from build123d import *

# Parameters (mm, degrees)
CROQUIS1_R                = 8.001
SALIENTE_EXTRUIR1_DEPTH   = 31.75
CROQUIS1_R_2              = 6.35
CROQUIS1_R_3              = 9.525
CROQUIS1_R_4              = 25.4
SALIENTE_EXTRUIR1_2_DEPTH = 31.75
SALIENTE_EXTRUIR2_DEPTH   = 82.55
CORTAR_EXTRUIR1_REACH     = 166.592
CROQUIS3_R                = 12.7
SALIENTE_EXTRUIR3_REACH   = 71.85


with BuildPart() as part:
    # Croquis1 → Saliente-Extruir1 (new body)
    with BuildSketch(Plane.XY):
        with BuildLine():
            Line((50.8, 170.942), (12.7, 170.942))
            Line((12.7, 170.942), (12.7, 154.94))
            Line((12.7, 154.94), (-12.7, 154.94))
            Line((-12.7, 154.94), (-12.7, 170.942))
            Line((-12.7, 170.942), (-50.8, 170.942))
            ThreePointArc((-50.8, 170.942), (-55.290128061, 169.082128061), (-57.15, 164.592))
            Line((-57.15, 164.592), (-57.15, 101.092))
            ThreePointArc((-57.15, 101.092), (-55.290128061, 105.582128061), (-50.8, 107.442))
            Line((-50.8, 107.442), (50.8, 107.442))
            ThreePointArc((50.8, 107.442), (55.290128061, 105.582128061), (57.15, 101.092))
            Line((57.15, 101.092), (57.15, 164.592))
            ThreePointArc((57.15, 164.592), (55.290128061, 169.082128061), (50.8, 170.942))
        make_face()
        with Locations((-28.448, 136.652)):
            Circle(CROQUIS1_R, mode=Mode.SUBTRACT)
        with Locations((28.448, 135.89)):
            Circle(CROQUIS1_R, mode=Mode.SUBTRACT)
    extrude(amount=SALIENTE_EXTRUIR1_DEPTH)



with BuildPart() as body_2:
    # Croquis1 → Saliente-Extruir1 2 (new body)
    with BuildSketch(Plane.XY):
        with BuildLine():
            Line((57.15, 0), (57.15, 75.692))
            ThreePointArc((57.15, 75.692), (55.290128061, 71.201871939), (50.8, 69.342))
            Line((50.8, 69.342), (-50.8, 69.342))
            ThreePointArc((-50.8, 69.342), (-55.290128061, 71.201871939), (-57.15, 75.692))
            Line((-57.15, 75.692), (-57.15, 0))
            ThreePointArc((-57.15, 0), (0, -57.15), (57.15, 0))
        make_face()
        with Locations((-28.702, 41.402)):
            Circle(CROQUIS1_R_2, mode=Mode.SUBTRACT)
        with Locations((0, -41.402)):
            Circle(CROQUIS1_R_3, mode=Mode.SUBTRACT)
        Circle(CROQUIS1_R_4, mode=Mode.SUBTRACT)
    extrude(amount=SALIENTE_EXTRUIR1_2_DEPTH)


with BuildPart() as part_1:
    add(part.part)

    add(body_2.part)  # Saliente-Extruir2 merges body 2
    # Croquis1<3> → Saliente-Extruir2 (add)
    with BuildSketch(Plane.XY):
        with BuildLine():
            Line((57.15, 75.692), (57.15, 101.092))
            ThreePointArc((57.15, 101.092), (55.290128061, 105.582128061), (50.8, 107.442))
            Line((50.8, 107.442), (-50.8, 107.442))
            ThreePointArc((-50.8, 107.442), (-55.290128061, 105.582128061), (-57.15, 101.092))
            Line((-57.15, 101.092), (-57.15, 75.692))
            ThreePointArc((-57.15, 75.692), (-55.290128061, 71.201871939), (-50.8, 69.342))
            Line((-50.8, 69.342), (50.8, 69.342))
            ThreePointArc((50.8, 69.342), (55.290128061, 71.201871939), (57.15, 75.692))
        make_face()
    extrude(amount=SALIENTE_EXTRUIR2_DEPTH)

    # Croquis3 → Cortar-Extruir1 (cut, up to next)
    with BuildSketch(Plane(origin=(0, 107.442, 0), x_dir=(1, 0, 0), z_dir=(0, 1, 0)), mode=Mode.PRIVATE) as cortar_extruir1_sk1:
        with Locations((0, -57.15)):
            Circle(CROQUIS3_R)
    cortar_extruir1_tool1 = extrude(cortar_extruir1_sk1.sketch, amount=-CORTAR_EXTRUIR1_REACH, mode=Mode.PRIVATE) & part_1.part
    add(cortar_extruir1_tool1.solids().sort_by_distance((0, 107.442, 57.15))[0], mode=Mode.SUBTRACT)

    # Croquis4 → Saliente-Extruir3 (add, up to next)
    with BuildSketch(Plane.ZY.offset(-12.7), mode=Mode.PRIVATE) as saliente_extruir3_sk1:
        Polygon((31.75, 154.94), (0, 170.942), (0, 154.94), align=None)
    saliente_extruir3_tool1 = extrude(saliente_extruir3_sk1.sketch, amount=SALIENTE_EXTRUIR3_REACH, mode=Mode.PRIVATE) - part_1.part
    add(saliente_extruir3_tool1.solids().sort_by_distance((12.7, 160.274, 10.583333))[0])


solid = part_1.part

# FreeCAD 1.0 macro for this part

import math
import FreeCAD as App
import Part
import Sketcher
from FreeCAD import Vector
Q = App.Units.Quantity

doc = App.newDocument("Part")
body = doc.addObject("PartDesign::Body", "Body")

sketch1 = body.newObject("Sketcher::SketchObject", "Sketch")
sketch1.AttachmentSupport = (doc.getObject("XY_Plane"), [""])
sketch1.MapMode = "FlatFace"
sketch1.addGeometry(Part.LineSegment(Vector(51, 171, 0), Vector(13, 171, 0)), False)
sketch1.addGeometry(Part.LineSegment(Vector(13, 171, 0), Vector(13, 155, 0)), False)
sketch1.addGeometry(Part.LineSegment(Vector(13, 155, 0), Vector(-13, 155, 0)), False)
sketch1.addGeometry(Part.LineSegment(Vector(-13, 155, 0), Vector(-13, 171, 0)), False)
sketch1.addGeometry(Part.LineSegment(Vector(-13, 171, 0), Vector(-51, 171, 0)), False)
sketch1.addGeometry(Part.ArcOfCircle(Part.Circle(Vector(-51, 165, 0), Vector(0, 0, 1), 6), math.radians(90), math.radians(180)), False)
sketch1.addGeometry(Part.LineSegment(Vector(-57, 165, 0), Vector(-57, 101, 0)), False)
sketch1.addGeometry(Part.ArcOfCircle(Part.Circle(Vector(-51, 101, 0), Vector(0, 0, 1), 6), math.radians(90), math.radians(180)), False)
sketch1.addGeometry(Part.LineSegment(Vector(-51, 107, 0), Vector(51, 107, 0)), False)
sketch1.addGeometry(Part.ArcOfCircle(Part.Circle(Vector(51, 101, 0), Vector(0, 0, 1), 6), math.radians(0), math.radians(90)), False)
sketch1.addGeometry(Part.LineSegment(Vector(57, 101, 0), Vector(57, 165, 0)), False)
sketch1.addGeometry(Part.ArcOfCircle(Part.Circle(Vector(51, 165, 0), Vector(0, 0, 1), 6), math.radians(0), math.radians(90)), False)
sketch1.addGeometry(Part.Circle(Vector(28, 136, 0), Vector(0, 0, 1), 8), False)
sketch1.addGeometry(Part.Circle(Vector(-28, 137, 0), Vector(0, 0, 1), 8), False)
sketch1.addConstraint(Sketcher.Constraint("Coincident", 0, 2, 1, 1))
sketch1.addConstraint(Sketcher.Constraint("Coincident", 1, 2, 2, 1))
sketch1.addConstraint(Sketcher.Constraint("Coincident", 2, 2, 3, 1))
sketch1.addConstraint(Sketcher.Constraint("Coincident", 3, 2, 4, 1))
sketch1.addConstraint(Sketcher.Constraint("Tangent", 4, 2, 5, 1))
sketch1.addConstraint(Sketcher.Constraint("Tangent", 5, 2, 6, 1))
sketch1.addConstraint(Sketcher.Constraint("Tangent", 6, 2, 7, 2))
sketch1.addConstraint(Sketcher.Constraint("Tangent", 7, 1, 8, 1))
sketch1.addConstraint(Sketcher.Constraint("Tangent", 8, 2, 9, 2))
sketch1.addConstraint(Sketcher.Constraint("Tangent", 9, 1, 10, 1))
sketch1.addConstraint(Sketcher.Constraint("Tangent", 10, 2, 11, 1))
sketch1.addConstraint(Sketcher.Constraint("Tangent", 11, 2, 0, 1))
sketch1.addConstraint(Sketcher.Constraint("Horizontal", 0))
sketch1.addConstraint(Sketcher.Constraint("Vertical", 1))
sketch1.addConstraint(Sketcher.Constraint("Horizontal", 2))
sketch1.addConstraint(Sketcher.Constraint("Vertical", 3))
sketch1.addConstraint(Sketcher.Constraint("Horizontal", 4))
sketch1.addConstraint(Sketcher.Constraint("Vertical", 6))
sketch1.addConstraint(Sketcher.Constraint("Horizontal", 8))
sketch1.addConstraint(Sketcher.Constraint("Vertical", 10))
sketch1.addConstraint(Sketcher.Constraint("Equal", 5, 7))
sketch1.addConstraint(Sketcher.Constraint("Equal", 7, 9))
sketch1.addConstraint(Sketcher.Constraint("Equal", 9, 11))
sketch1.addConstraint(Sketcher.Constraint("Equal", 12, 13))
sketch1.addConstraint(Sketcher.Constraint("Symmetric", 5, 3, 11, 3, -2))
sketch1.addConstraint(Sketcher.Constraint("Equal", 0, 4))
sketch1.addConstraint(Sketcher.Constraint("Diameter", 12, Q("0.63 in")))
sketch1.addConstraint(Sketcher.Constraint("DistanceX", 2, 2, 2, 1, Q("1 in")))
sketch1.addConstraint(Sketcher.Constraint("DistanceX", 8, 1, 8, 2, Q("4 in")))
sketch1.addConstraint(Sketcher.Constraint("Radius", 5, Q("0.25 in")))
sketch1.addConstraint(Sketcher.Constraint("DistanceY", 6, 2, 6, 1, Q("2.5 in")))
sketch1.addConstraint(Sketcher.Constraint("DistanceY", 1, 2, 1, 1, Q("0.63 in")))
sketch1.addConstraint(Sketcher.Constraint("DistanceY", -1, 1, 1, 2, Q("6.1 in")))
sketch1.addConstraint(Sketcher.Constraint("DistanceY", 13, 3, 5, 3, Q("1.1 in")))
sketch1.addConstraint(Sketcher.Constraint("DistanceX", -1, 1, 12, 3, Q("1.12 in")))
sketch1.addConstraint(Sketcher.Constraint("DistanceY", -1, 1, 12, 3, Q("5.35 in")))
sketch1.addConstraint(Sketcher.Constraint("DistanceX", 13, 3, -1, 1, Q("1.12 in")))
pad1 = body.newObject("PartDesign::Pad", "Pad")
pad1.Profile = sketch1
pad1.Length = Q("1.25 in")
body2 = doc.addObject("PartDesign::Body", "Body001")

sketch2 = body2.newObject("Sketcher::SketchObject", "Sketch001")
sketch2.AttachmentSupport = (doc.getObject("XY_Plane001"), [""])
sketch2.MapMode = "FlatFace"
sketch2.addGeometry(Part.LineSegment(Vector(57, 0, 0), Vector(57, 76, 0)), False)
sketch2.addGeometry(Part.ArcOfCircle(Part.Circle(Vector(51, 76, 0), Vector(0, 0, 1), 6), math.radians(-90), math.radians(0)), False)
sketch2.addGeometry(Part.LineSegment(Vector(51, 69, 0), Vector(-51, 69, 0)), False)
sketch2.addGeometry(Part.ArcOfCircle(Part.Circle(Vector(-51, 76, 0), Vector(0, 0, 1), 6), math.radians(180), math.radians(270)), False)
sketch2.addGeometry(Part.LineSegment(Vector(-57, 76, 0), Vector(-57, 0, 0)), False)
sketch2.addGeometry(Part.ArcOfCircle(Part.Circle(Vector(0, 0, 0), Vector(0, 0, 1), 57), math.radians(180), math.radians(360)), False)
sketch2.addGeometry(Part.Circle(Vector(0, -41, 0), Vector(0, 0, 1), 10), False)
sketch2.addGeometry(Part.Circle(Vector(-29, 41, 0), Vector(0, 0, 1), 6), False)
sketch2.addGeometry(Part.Circle(Vector(0, 0, 0), Vector(0, 0, 1), 25), False)
sketch2.addConstraint(Sketcher.Constraint("Tangent", 0, 2, 1, 2))
sketch2.addConstraint(Sketcher.Constraint("Tangent", 1, 1, 2, 1))
sketch2.addConstraint(Sketcher.Constraint("Tangent", 2, 2, 3, 2))
sketch2.addConstraint(Sketcher.Constraint("Tangent", 3, 1, 4, 1))
sketch2.addConstraint(Sketcher.Constraint("Tangent", 4, 2, 5, 1))
sketch2.addConstraint(Sketcher.Constraint("Tangent", 5, 2, 0, 1))
sketch2.addConstraint(Sketcher.Constraint("Vertical", 0))
sketch2.addConstraint(Sketcher.Constraint("Horizontal", 2))
sketch2.addConstraint(Sketcher.Constraint("Vertical", 4))
sketch2.addConstraint(Sketcher.Constraint("Coincident", 5, 3, -1, 1))
sketch2.addConstraint(Sketcher.Constraint("Coincident", 8, 3, -1, 1))
sketch2.addConstraint(Sketcher.Constraint("Equal", 1, 3))
sketch2.addConstraint(Sketcher.Constraint("Equal", 3, 7))
sketch2.addConstraint(Sketcher.Constraint("PointOnObject", 6, 3, -2))
sketch2.addConstraint(Sketcher.Constraint("Diameter", 8, Q("2 in")))
sketch2.addConstraint(Sketcher.Constraint("Diameter", 7, Q("0.5 in")))
sketch2.addConstraint(Sketcher.Constraint("Diameter", 6, Q("0.75 in")))
sketch2.addConstraint(Sketcher.Constraint("DistanceX", 2, 2, 2, 1, Q("4 in")))
sketch2.addConstraint(Sketcher.Constraint("DistanceY", 0, 1, 0, 2, Q("2.98 in")))
sketch2.addConstraint(Sketcher.Constraint("DistanceY", 7, 3, 1, 1, Q("1.1 in")))
sketch2.addConstraint(Sketcher.Constraint("DistanceY", 6, 3, -1, 1, Q("1.63 in")))
sketch2.addConstraint(Sketcher.Constraint("DistanceX", 7, 3, -1, 1, Q("1.13 in")))
pad2 = body2.newObject("PartDesign::Pad", "Pad001")
pad2.Profile = sketch2
pad2.Length = Q("1.25 in")
body.AllowCompound = True
doc.recompute()

boolean = body.newObject("PartDesign::Boolean", "Boolean")
boolean.Type = "Fuse"
boolean.addObjects([body2])

sketch3 = body.newObject("Sketcher::SketchObject", "Sketch002")
sketch3.AttachmentSupport = (doc.getObject("XY_Plane"), [""])
sketch3.MapMode = "FlatFace"
sketch3.addGeometry(Part.LineSegment(Vector(57, 76, 0), Vector(57, 101, 0)), False)
sketch3.addGeometry(Part.ArcOfCircle(Part.Circle(Vector(51, 101, 0), Vector(0, 0, 1), 6), math.radians(0), math.radians(90)), False)
sketch3.addGeometry(Part.LineSegment(Vector(51, 107, 0), Vector(-51, 107, 0)), False)
sketch3.addGeometry(Part.ArcOfCircle(Part.Circle(Vector(-51, 101, 0), Vector(0, 0, 1), 6), math.radians(90), math.radians(180)), False)
sketch3.addGeometry(Part.LineSegment(Vector(-57, 101, 0), Vector(-57, 76, 0)), False)
sketch3.addGeometry(Part.ArcOfCircle(Part.Circle(Vector(-51, 76, 0), Vector(0, 0, 1), 6), math.radians(180), math.radians(270)), False)
sketch3.addGeometry(Part.LineSegment(Vector(-51, 69, 0), Vector(51, 69, 0)), False)
sketch3.addGeometry(Part.ArcOfCircle(Part.Circle(Vector(51, 76, 0), Vector(0, 0, 1), 6), math.radians(-90), math.radians(0)), False)
sketch3.addConstraint(Sketcher.Constraint("Tangent", 0, 2, 1, 1))
sketch3.addConstraint(Sketcher.Constraint("Tangent", 1, 2, 2, 1))
sketch3.addConstraint(Sketcher.Constraint("Tangent", 2, 2, 3, 1))
sketch3.addConstraint(Sketcher.Constraint("Tangent", 3, 2, 4, 1))
sketch3.addConstraint(Sketcher.Constraint("Tangent", 4, 2, 5, 1))
sketch3.addConstraint(Sketcher.Constraint("Tangent", 5, 2, 6, 1))
sketch3.addConstraint(Sketcher.Constraint("Tangent", 6, 2, 7, 1))
sketch3.addConstraint(Sketcher.Constraint("Tangent", 7, 2, 0, 1))
sketch3.addConstraint(Sketcher.Constraint("Vertical", 0))
sketch3.addConstraint(Sketcher.Constraint("Horizontal", 2))
sketch3.addConstraint(Sketcher.Constraint("Vertical", 4))
sketch3.addConstraint(Sketcher.Constraint("Horizontal", 6))
sketch3.addConstraint(Sketcher.Constraint("Equal", 1, 3))
sketch3.addConstraint(Sketcher.Constraint("Equal", 3, 5))
sketch3.addConstraint(Sketcher.Constraint("Equal", 5, 7))
sketch3.addConstraint(Sketcher.Constraint("DistanceX", 2, 2, 2, 1, Q("4 in")))
sketch3.addConstraint(Sketcher.Constraint("DistanceY", 0, 1, 0, 2, Q("1 in")))
sketch3.addConstraint(Sketcher.Constraint("Radius", 1, Q("0.25 in")))
sketch3.addConstraint(Sketcher.Constraint("DistanceX", -1, 1, 1, 3, Q("2 in")))
sketch3.addConstraint(Sketcher.Constraint("DistanceY", -1, 1, 1, 3, Q("3.98 in")))
pad3 = body.newObject("PartDesign::Pad", "Pad002")
pad3.Profile = sketch3
pad3.Length = Q("3.25 in")

sketch4 = body.newObject("Sketcher::SketchObject", "Sketch003")
sketch4.AttachmentSupport = (doc.getObject("XZ_Plane"), [""])
sketch4.MapMode = "FlatFace"
sketch4.AttachmentOffset = App.Placement(Vector(0, 0, -4.23 * 25.4), App.Rotation())
sketch4.addGeometry(Part.Circle(Vector(0, 57, 0), Vector(0, 0, 1), 13), False)
sketch4.addConstraint(Sketcher.Constraint("PointOnObject", 0, 3, -2))
sketch4.addConstraint(Sketcher.Constraint("Diameter", 0, Q("1 in")))
sketch4.addConstraint(Sketcher.Constraint("DistanceY", -1, 1, 0, 3, Q("2.25 in")))
pocket1 = body.newObject("PartDesign::Pocket", "Pocket")
pocket1.Profile = sketch4
pocket1.Type = "UpToFirst"
pocket1.Reversed = True

sketch5 = body.newObject("Sketcher::SketchObject", "Sketch004")
sketch5.AttachmentSupport = (doc.getObject("YZ_Plane"), [""])
sketch5.MapMode = "FlatFace"
sketch5.AttachmentOffset = App.Placement(Vector(0, 0, 0.5 * 25.4), App.Rotation())
sketch5.addGeometry(Part.LineSegment(Vector(155, 32, 0), Vector(171, 0, 0)), False)
sketch5.addGeometry(Part.LineSegment(Vector(171, 0, 0), Vector(155, 0, 0)), False)
sketch5.addGeometry(Part.LineSegment(Vector(155, 0, 0), Vector(155, 32, 0)), False)
sketch5.addConstraint(Sketcher.Constraint("Coincident", 0, 2, 1, 1))
sketch5.addConstraint(Sketcher.Constraint("Coincident", 1, 2, 2, 1))
sketch5.addConstraint(Sketcher.Constraint("Coincident", 2, 2, 0, 1))
sketch5.addConstraint(Sketcher.Constraint("Horizontal", 1))
sketch5.addConstraint(Sketcher.Constraint("Vertical", 2))
sketch5.addConstraint(Sketcher.Constraint("PointOnObject", 0, 2, -1))
sketch5.addConstraint(Sketcher.Constraint("DistanceX", 1, 2, 1, 1, Q("0.63 in")))
sketch5.addConstraint(Sketcher.Constraint("DistanceY", 2, 1, 2, 2, Q("1.25 in")))
sketch5.addConstraint(Sketcher.Constraint("DistanceX", -1, 1, 1, 2, Q("6.1 in")))
pad4 = body.newObject("PartDesign::Pad", "Pad003")
pad4.Profile = sketch5
pad4.Type = "UpToFirst"
pad4.Reversed = True

doc.recompute()
